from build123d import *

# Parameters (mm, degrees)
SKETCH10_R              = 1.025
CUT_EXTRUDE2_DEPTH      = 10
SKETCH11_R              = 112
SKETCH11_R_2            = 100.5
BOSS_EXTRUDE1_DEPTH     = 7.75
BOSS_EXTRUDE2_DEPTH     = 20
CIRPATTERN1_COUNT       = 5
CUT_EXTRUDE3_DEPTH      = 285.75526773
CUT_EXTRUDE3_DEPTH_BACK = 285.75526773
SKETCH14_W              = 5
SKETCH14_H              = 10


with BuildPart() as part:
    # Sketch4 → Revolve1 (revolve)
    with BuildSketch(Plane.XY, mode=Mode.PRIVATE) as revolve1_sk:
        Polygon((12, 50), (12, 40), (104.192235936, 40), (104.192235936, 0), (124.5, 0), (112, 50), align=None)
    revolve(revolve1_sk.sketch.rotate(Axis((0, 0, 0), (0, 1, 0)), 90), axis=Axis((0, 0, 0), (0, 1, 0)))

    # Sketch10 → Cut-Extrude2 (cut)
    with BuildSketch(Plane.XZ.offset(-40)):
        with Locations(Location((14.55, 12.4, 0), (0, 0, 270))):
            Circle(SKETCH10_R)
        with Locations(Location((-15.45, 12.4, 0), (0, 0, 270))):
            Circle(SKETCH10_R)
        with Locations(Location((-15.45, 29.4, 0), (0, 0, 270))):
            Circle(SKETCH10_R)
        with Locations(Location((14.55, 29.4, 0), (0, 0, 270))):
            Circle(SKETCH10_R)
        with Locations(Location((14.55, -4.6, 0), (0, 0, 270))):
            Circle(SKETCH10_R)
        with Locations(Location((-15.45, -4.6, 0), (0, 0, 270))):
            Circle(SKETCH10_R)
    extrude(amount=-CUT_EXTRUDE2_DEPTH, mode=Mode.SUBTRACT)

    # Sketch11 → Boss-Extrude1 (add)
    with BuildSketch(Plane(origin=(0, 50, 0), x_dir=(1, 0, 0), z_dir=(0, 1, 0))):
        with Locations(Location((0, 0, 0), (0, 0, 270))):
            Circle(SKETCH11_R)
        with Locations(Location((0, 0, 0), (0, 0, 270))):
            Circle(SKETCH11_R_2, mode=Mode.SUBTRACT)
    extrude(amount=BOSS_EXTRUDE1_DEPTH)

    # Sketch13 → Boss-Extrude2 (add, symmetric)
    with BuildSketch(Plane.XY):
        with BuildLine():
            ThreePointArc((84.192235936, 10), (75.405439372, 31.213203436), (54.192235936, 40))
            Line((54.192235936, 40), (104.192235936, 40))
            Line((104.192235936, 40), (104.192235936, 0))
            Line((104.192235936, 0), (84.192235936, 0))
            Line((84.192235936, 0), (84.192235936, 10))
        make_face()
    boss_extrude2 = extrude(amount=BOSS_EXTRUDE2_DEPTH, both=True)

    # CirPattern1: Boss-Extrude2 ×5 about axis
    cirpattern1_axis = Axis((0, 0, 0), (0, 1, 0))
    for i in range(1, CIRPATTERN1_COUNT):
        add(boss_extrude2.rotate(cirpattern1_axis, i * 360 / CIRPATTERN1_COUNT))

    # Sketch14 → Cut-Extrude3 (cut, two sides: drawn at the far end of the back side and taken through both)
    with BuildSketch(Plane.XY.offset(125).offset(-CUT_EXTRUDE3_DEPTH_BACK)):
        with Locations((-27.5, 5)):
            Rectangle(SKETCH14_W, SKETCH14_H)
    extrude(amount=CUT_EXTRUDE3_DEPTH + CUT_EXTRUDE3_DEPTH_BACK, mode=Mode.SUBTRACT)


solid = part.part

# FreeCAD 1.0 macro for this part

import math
import FreeCAD as App
import Part
import Sketcher

V = App.Vector

doc = App.newDocument("Part")
body = doc.addObject("PartDesign::Body", "Body")

# Sketch on XY plane
sketch1 = body.newObject("Sketcher::SketchObject", "Sketch")
sketch1.AttachmentSupport = (doc.getObject("XY_Plane"), [""])
sketch1.MapMode = "FlatFace"
sketch1.addGeometry([
    Part.LineSegment(V(12, 50, 0), V(12, 40, 0)),  # 0
    Part.LineSegment(V(12, 40, 0), V(104.192236, 40, 0)),  # 1
    Part.LineSegment(V(104.192236, 40, 0), V(104.192236, 0, 0)),  # 2
    Part.LineSegment(V(104.192236, 0, 0), V(124.5, 0, 0)),  # 3
    Part.LineSegment(V(124.5, 0, 0), V(112, 50, 0)),  # 4
    Part.LineSegment(V(112, 50, 0), V(12, 50, 0)),  # 5
], False)
sketch1.addConstraint([
    Sketcher.Constraint("Coincident", 0, 2, 1, 1),
    Sketcher.Constraint("Coincident", 1, 2, 2, 1),
    Sketcher.Constraint("Coincident", 2, 2, 3, 1),
    Sketcher.Constraint("Coincident", 3, 2, 4, 1),
    Sketcher.Constraint("Coincident", 4, 2, 5, 1),
    Sketcher.Constraint("Coincident", 5, 2, 0, 1),
    Sketcher.Constraint("Vertical", 0),
    Sketcher.Constraint("Horizontal", 1),
    Sketcher.Constraint("Vertical", 2),
    Sketcher.Constraint("Horizontal", 3),
    Sketcher.Constraint("Horizontal", 5),
    Sketcher.Constraint("PointOnObject", 2, 2, -1),
    Sketcher.Constraint("DistanceX", 5, 2, 5, 1, 100.0),
    Sketcher.Constraint("DistanceY", 0, 2, 0, 1, 10.0),
    Sketcher.Constraint("DistanceY", 2, 2, 2, 1, 40.0),
    Sketcher.Constraint("DistanceX", -1, 1, 0, 2, 12.0),
    Sketcher.Constraint("DistanceX", -1, 1, 3, 2, 124.5),
    Sketcher.Constraint("DistanceX", 1, 1, 1, 2, 92.192236),
])
revolution = body.newObject("PartDesign::Revolution", "Revolution")
revolution.Profile = sketch1
revolution.ReferenceAxis = (sketch1, ["V_Axis"])
revolution.Angle = 360

# Sketch on XZ plane
sketch2 = body.newObject("Sketcher::SketchObject", "Sketch001")
sketch2.AttachmentSupport = (doc.getObject("XZ_Plane"), [""])
sketch2.MapMode = "FlatFace"
sketch2.AttachmentOffset = App.Placement(V(0, 0, -40), App.Rotation())
sketch2.addGeometry([
    Part.Circle(V(14.55, 12.4, 0), V(0, 0, 1), 1.025),  # 0
    Part.Circle(V(-15.45, 12.4, 0), V(0, 0, 1), 1.025),  # 1
    Part.Circle(V(-15.45, 29.4, 0), V(0, 0, 1), 1.025),  # 2
    Part.Circle(V(14.55, 29.4, 0), V(0, 0, 1), 1.025),  # 3
    Part.Circle(V(14.55, -4.6, 0), V(0, 0, 1), 1.025),  # 4
    Part.Circle(V(-15.45, -4.6, 0), V(0, 0, 1), 1.025),  # 5
], False)
sketch2.addConstraint([
    Sketcher.Constraint("Equal", 0, 1),
    Sketcher.Constraint("Equal", 1, 2),
    Sketcher.Constraint("Equal", 2, 3),
    Sketcher.Constraint("Equal", 3, 4),
    Sketcher.Constraint("Equal", 4, 5),
    Sketcher.Constraint("Horizontal", 0, 3, 1, 3),
    Sketcher.Constraint("Horizontal", 2, 3, 3, 3),
    Sketcher.Constraint("Horizontal", 4, 3, 5, 3),
    Sketcher.Constraint("Vertical", 1, 3, 2, 3),
    Sketcher.Constraint("Vertical", 0, 3, 3, 3),
    Sketcher.Constraint("Vertical", 3, 3, 4, 3),
    Sketcher.Constraint("Vertical", 2, 3, 5, 3),
    Sketcher.Constraint("Diameter", 0, 2.05),
    Sketcher.Constraint("DistanceX", 1, 3, 0, 3, 30.0),
    Sketcher.Constraint("DistanceY", 1, 3, 2, 3, 17.0),
    Sketcher.Constraint("DistanceY", 4, 3, 0, 3, 17.0),
    Sketcher.Constraint("DistanceY", -1, 1, 0, 3, 12.4),
    Sketcher.Constraint("DistanceX", -1, 1, 0, 3, 14.55),
])
pocket1 = body.newObject("PartDesign::Pocket", "Pocket")
pocket1.Profile = sketch2
pocket1.Length = 10

# Sketch on XZ plane
sketch3 = body.newObject("Sketcher::SketchObject", "Sketch002")
sketch3.AttachmentSupport = (doc.getObject("XZ_Plane"), [""])
sketch3.MapMode = "FlatFace"
sketch3.AttachmentOffset = App.Placement(V(0, 0, -50), App.Rotation())
sketch3.addGeometry([
    Part.Circle(V(0, 0, 0), V(0, 0, 1), 112),
    Part.Circle(V(0, 0, 0), V(0, 0, 1), 100.5),
], False)
sketch3.addConstraint([
    Sketcher.Constraint("Coincident", 0, 3, -1, 1),
    Sketcher.Constraint("Coincident", 1, 3, -1, 1),
    Sketcher.Constraint("Diameter", 0, 224.0),
    Sketcher.Constraint("Diameter", 1, 201.0),
])
pad1 = body.newObject("PartDesign::Pad", "Pad")
pad1.Profile = sketch3
pad1.Length = 7.75
pad1.Reversed = True

# Sketch on XY plane
sketch4 = body.newObject("Sketcher::SketchObject", "Sketch003")
sketch4.AttachmentSupport = (doc.getObject("XY_Plane"), [""])
sketch4.MapMode = "FlatFace"
sketch4.addGeometry([
    Part.ArcOfCircle(Part.Circle(V(54.192236, 10, 0), V(0, 0, 1), 30), math.radians(0), math.radians(90)),  # 0
    Part.LineSegment(V(84.192236, 10, 0), V(84.192236, 0, 0)),  # 1
    Part.LineSegment(V(84.192236, 0, 0), V(104.192236, 0, 0)),  # 2
    Part.LineSegment(V(104.192236, 0, 0), V(104.192236, 40, 0)),  # 3
    Part.LineSegment(V(104.192236, 40, 0), V(54.192236, 40, 0)),  # 4
], False)
sketch4.addConstraint([
    Sketcher.Constraint("Tangent", 0, 1, 1, 1),
    Sketcher.Constraint("Coincident", 1, 2, 2, 1),
    Sketcher.Constraint("Coincident", 2, 2, 3, 1),
    Sketcher.Constraint("Coincident", 3, 2, 4, 1),
    Sketcher.Constraint("Tangent", 4, 2, 0, 2),
    Sketcher.Constraint("Vertical", 1),
    Sketcher.Constraint("Horizontal", 2),
    Sketcher.Constraint("Vertical", 3),
    Sketcher.Constraint("Horizontal", 4),
    Sketcher.Constraint("PointOnObject", 1, 2, -1),
    Sketcher.Constraint("Radius", 0, 30.0),
    Sketcher.Constraint("DistanceX", 2, 1, 2, 2, 20.0),
    Sketcher.Constraint("DistanceY", 1, 2, 1, 1, 10.0),
    Sketcher.Constraint("DistanceX", -1, 1, 0, 3, 54.192236),
])
pad2 = body.newObject("PartDesign::Pad", "Pad001")
pad2.Profile = sketch4
pad2.Length = 40
pad2.Midplane = True
doc.recompute()

polarpattern = body.newObject("PartDesign::PolarPattern", "PolarPattern")
polarpattern.Originals = [pad2]
polarpattern.Axis = (doc.getObject("Y_Axis"), [""])
polarpattern.Angle = 360
polarpattern.Occurrences = 5
body.Tip = polarpattern

# Sketch on XY plane
sketch5 = body.newObject("Sketcher::SketchObject", "Sketch004")
sketch5.AttachmentSupport = (doc.getObject("XY_Plane"), [""])
sketch5.MapMode = "FlatFace"
sketch5.AttachmentOffset = App.Placement(V(0, 0, 125), App.Rotation())
sketch5.addGeometry([
    Part.LineSegment(V(-30, 10, 0), V(-30, 0, 0)),
    Part.LineSegment(V(-30, 0, 0), V(-25, 0, 0)),
    Part.LineSegment(V(-25, 0, 0), V(-25, 10, 0)),
    Part.LineSegment(V(-25, 10, 0), V(-30, 10, 0)),
], False)
sketch5.addConstraint([
    Sketcher.Constraint("Coincident", 0, 2, 1, 1),
    Sketcher.Constraint("Coincident", 1, 2, 2, 1),
    Sketcher.Constraint("Coincident", 2, 2, 3, 1),
    Sketcher.Constraint("Coincident", 3, 2, 0, 1),
    Sketcher.Constraint("Vertical", 0),
    Sketcher.Constraint("Horizontal", 1),
    Sketcher.Constraint("Vertical", 2),
    Sketcher.Constraint("Horizontal", 3),
    Sketcher.Constraint("PointOnObject", 0, 2, -1),
    Sketcher.Constraint("DistanceX", 1, 1, 1, 2, 5.0),
    Sketcher.Constraint("DistanceY", 0, 2, 0, 1, 10.0),
    Sketcher.Constraint("DistanceX", 0, 2, -1, 1, 30.0),
])
pocket2 = body.newObject("PartDesign::Pocket", "Pocket001")
pocket2.Profile = sketch5
pocket2.Type = "ThroughAll"
pocket2.Midplane = True

doc.recompute()
